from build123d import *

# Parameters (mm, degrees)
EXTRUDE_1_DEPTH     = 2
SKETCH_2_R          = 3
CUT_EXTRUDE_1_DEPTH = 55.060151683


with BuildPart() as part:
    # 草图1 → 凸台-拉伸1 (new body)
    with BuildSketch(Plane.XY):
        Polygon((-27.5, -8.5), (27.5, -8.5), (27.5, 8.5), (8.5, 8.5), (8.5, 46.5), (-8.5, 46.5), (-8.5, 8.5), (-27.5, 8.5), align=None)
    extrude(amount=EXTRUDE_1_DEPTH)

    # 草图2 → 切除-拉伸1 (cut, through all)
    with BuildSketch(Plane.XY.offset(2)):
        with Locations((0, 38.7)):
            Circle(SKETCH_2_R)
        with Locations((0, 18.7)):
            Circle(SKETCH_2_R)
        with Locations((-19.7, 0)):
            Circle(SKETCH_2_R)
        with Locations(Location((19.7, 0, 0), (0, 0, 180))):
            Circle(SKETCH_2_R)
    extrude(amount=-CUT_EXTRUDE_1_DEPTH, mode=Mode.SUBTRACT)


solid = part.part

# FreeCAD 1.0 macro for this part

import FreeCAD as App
import Part
import Sketcher

V = App.Vector
Q = App.Units.Quantity


def add_polygon(sketch, points):
    """Adds a closed chain of lines whose ends are joined by coincident constraints."""
    first, n = sketch.GeometryCount, len(points)
    for a, b in zip(points, points[1:] + points[:1]):
        sketch.addGeometry(Part.LineSegment(App.Vector(*a, 0), App.Vector(*b, 0)), False)
    for i in range(n):
        sketch.addConstraint(Sketcher.Constraint("Coincident", first + i, 2, first + (i + 1) % n, 1))

doc = App.newDocument("Part")
body = doc.addObject("PartDesign::Body", "Body")

# Sketch on XY plane
sketch1 = body.newObject("Sketcher::SketchObject", "Sketch")
sketch1.AttachmentSupport = (doc.getObject("XY_Plane"), [""])
sketch1.MapMode = "FlatFace"
add_polygon(sketch1, [(-27.5, -8.5), (27.5, -8.5), (27.5, 8.5), (8.5, 8.5), (8.5, 46.5), (-8.5, 46.5), (-8.5, 8.5), (-27.5, 8.5)])  # lines 0-7
sketch1.addConstraint(Sketcher.Constraint("Horizontal", 0))
sketch1.addConstraint(Sketcher.Constraint("Vertical", 1))
sketch1.addConstraint(Sketcher.Constraint("Horizontal", 2))
sketch1.addConstraint(Sketcher.Constraint("Vertical", 3))
sketch1.addConstraint(Sketcher.Constraint("Horizontal", 4))
sketch1.addConstraint(Sketcher.Constraint("Vertical", 5))
sketch1.addConstraint(Sketcher.Constraint("Horizontal", 6))
sketch1.addConstraint(Sketcher.Constraint("Vertical", 7))
sketch1.addConstraint(Sketcher.Constraint("Symmetric", 0, 2, 6, 2, -1, 1))
sketch1.addConstraint(Sketcher.Constraint("Symmetric", 2, 2, 5, 2, -2))
sketch1.addConstraint(Sketcher.Constraint("Equal", 4, 1))
sketch1.addConstraint(Sketcher.Constraint("DistanceX", 0, 1, 0, 2, Q("55 mm")))
sketch1.addConstraint(Sketcher.Constraint("DistanceX", 2, 2, 2, 1, Q("19 mm")))
sketch1.addConstraint(Sketcher.Constraint("DistanceY", 3, 1, 3, 2, Q("38 mm")))
pad1 = body.newObject("PartDesign::Pad", "Pad")
pad1.Profile = sketch1
pad1.Length = 2

# Sketch on XY plane
sketch2 = body.newObject("Sketcher::SketchObject", "Sketch001")
sketch2.AttachmentSupport = (doc.getObject("XY_Plane"), [""])
sketch2.MapMode = "FlatFace"
sketch2.AttachmentOffset = App.Placement(V(0, 0, 2), App.Rotation())
sketch2.addGeometry(Part.Circle(V(0, 38.7, 0), V(0, 0, 1), 3), False)
sketch2.addGeometry(Part.Circle(V(0, 18.7, 0), V(0, 0, 1), 3), False)
sketch2.addGeometry(Part.Circle(V(-19.7, 0, 0), V(0, 0, 1), 3), False)
sketch2.addGeometry(Part.Circle(V(19.7, 0, 0), V(0, 0, 1), 3), False)
sketch2.addConstraint(Sketcher.Constraint("Equal", 0, 1))
sketch2.addConstraint(Sketcher.Constraint("Equal", 1, 2))
sketch2.addConstraint(Sketcher.Constraint("Equal", 2, 3))
sketch2.addConstraint(Sketcher.Constraint("Symmetric", 2, 3, 3, 3, -1, 1))
sketch2.addConstraint(Sketcher.Constraint("PointOnObject", 0, 3, -2))
sketch2.addConstraint(Sketcher.Constraint("PointOnObject", 1, 3, -2))
sketch2.addConstraint(Sketcher.Constraint("PointOnObject", 2, 3, -1))
sketch2.addConstraint(Sketcher.Constraint("Diameter", 0, Q("6 mm")))
sketch2.addConstraint(Sketcher.Constraint("DistanceY", 1, 3, 0, 3, Q("20 mm")))
sketch2.addConstraint(Sketcher.Constraint("DistanceY", -1, 1, 0, 3, Q("38.7 mm")))
sketch2.addConstraint(Sketcher.Constraint("DistanceX", 2, 3, -1, 1, Q("19.7 mm")))
pocket1 = body.newObject("PartDesign::Pocket", "Pocket")
pocket1.Profile = sketch2
pocket1.Type = "ThroughAll"

doc.recompute()
